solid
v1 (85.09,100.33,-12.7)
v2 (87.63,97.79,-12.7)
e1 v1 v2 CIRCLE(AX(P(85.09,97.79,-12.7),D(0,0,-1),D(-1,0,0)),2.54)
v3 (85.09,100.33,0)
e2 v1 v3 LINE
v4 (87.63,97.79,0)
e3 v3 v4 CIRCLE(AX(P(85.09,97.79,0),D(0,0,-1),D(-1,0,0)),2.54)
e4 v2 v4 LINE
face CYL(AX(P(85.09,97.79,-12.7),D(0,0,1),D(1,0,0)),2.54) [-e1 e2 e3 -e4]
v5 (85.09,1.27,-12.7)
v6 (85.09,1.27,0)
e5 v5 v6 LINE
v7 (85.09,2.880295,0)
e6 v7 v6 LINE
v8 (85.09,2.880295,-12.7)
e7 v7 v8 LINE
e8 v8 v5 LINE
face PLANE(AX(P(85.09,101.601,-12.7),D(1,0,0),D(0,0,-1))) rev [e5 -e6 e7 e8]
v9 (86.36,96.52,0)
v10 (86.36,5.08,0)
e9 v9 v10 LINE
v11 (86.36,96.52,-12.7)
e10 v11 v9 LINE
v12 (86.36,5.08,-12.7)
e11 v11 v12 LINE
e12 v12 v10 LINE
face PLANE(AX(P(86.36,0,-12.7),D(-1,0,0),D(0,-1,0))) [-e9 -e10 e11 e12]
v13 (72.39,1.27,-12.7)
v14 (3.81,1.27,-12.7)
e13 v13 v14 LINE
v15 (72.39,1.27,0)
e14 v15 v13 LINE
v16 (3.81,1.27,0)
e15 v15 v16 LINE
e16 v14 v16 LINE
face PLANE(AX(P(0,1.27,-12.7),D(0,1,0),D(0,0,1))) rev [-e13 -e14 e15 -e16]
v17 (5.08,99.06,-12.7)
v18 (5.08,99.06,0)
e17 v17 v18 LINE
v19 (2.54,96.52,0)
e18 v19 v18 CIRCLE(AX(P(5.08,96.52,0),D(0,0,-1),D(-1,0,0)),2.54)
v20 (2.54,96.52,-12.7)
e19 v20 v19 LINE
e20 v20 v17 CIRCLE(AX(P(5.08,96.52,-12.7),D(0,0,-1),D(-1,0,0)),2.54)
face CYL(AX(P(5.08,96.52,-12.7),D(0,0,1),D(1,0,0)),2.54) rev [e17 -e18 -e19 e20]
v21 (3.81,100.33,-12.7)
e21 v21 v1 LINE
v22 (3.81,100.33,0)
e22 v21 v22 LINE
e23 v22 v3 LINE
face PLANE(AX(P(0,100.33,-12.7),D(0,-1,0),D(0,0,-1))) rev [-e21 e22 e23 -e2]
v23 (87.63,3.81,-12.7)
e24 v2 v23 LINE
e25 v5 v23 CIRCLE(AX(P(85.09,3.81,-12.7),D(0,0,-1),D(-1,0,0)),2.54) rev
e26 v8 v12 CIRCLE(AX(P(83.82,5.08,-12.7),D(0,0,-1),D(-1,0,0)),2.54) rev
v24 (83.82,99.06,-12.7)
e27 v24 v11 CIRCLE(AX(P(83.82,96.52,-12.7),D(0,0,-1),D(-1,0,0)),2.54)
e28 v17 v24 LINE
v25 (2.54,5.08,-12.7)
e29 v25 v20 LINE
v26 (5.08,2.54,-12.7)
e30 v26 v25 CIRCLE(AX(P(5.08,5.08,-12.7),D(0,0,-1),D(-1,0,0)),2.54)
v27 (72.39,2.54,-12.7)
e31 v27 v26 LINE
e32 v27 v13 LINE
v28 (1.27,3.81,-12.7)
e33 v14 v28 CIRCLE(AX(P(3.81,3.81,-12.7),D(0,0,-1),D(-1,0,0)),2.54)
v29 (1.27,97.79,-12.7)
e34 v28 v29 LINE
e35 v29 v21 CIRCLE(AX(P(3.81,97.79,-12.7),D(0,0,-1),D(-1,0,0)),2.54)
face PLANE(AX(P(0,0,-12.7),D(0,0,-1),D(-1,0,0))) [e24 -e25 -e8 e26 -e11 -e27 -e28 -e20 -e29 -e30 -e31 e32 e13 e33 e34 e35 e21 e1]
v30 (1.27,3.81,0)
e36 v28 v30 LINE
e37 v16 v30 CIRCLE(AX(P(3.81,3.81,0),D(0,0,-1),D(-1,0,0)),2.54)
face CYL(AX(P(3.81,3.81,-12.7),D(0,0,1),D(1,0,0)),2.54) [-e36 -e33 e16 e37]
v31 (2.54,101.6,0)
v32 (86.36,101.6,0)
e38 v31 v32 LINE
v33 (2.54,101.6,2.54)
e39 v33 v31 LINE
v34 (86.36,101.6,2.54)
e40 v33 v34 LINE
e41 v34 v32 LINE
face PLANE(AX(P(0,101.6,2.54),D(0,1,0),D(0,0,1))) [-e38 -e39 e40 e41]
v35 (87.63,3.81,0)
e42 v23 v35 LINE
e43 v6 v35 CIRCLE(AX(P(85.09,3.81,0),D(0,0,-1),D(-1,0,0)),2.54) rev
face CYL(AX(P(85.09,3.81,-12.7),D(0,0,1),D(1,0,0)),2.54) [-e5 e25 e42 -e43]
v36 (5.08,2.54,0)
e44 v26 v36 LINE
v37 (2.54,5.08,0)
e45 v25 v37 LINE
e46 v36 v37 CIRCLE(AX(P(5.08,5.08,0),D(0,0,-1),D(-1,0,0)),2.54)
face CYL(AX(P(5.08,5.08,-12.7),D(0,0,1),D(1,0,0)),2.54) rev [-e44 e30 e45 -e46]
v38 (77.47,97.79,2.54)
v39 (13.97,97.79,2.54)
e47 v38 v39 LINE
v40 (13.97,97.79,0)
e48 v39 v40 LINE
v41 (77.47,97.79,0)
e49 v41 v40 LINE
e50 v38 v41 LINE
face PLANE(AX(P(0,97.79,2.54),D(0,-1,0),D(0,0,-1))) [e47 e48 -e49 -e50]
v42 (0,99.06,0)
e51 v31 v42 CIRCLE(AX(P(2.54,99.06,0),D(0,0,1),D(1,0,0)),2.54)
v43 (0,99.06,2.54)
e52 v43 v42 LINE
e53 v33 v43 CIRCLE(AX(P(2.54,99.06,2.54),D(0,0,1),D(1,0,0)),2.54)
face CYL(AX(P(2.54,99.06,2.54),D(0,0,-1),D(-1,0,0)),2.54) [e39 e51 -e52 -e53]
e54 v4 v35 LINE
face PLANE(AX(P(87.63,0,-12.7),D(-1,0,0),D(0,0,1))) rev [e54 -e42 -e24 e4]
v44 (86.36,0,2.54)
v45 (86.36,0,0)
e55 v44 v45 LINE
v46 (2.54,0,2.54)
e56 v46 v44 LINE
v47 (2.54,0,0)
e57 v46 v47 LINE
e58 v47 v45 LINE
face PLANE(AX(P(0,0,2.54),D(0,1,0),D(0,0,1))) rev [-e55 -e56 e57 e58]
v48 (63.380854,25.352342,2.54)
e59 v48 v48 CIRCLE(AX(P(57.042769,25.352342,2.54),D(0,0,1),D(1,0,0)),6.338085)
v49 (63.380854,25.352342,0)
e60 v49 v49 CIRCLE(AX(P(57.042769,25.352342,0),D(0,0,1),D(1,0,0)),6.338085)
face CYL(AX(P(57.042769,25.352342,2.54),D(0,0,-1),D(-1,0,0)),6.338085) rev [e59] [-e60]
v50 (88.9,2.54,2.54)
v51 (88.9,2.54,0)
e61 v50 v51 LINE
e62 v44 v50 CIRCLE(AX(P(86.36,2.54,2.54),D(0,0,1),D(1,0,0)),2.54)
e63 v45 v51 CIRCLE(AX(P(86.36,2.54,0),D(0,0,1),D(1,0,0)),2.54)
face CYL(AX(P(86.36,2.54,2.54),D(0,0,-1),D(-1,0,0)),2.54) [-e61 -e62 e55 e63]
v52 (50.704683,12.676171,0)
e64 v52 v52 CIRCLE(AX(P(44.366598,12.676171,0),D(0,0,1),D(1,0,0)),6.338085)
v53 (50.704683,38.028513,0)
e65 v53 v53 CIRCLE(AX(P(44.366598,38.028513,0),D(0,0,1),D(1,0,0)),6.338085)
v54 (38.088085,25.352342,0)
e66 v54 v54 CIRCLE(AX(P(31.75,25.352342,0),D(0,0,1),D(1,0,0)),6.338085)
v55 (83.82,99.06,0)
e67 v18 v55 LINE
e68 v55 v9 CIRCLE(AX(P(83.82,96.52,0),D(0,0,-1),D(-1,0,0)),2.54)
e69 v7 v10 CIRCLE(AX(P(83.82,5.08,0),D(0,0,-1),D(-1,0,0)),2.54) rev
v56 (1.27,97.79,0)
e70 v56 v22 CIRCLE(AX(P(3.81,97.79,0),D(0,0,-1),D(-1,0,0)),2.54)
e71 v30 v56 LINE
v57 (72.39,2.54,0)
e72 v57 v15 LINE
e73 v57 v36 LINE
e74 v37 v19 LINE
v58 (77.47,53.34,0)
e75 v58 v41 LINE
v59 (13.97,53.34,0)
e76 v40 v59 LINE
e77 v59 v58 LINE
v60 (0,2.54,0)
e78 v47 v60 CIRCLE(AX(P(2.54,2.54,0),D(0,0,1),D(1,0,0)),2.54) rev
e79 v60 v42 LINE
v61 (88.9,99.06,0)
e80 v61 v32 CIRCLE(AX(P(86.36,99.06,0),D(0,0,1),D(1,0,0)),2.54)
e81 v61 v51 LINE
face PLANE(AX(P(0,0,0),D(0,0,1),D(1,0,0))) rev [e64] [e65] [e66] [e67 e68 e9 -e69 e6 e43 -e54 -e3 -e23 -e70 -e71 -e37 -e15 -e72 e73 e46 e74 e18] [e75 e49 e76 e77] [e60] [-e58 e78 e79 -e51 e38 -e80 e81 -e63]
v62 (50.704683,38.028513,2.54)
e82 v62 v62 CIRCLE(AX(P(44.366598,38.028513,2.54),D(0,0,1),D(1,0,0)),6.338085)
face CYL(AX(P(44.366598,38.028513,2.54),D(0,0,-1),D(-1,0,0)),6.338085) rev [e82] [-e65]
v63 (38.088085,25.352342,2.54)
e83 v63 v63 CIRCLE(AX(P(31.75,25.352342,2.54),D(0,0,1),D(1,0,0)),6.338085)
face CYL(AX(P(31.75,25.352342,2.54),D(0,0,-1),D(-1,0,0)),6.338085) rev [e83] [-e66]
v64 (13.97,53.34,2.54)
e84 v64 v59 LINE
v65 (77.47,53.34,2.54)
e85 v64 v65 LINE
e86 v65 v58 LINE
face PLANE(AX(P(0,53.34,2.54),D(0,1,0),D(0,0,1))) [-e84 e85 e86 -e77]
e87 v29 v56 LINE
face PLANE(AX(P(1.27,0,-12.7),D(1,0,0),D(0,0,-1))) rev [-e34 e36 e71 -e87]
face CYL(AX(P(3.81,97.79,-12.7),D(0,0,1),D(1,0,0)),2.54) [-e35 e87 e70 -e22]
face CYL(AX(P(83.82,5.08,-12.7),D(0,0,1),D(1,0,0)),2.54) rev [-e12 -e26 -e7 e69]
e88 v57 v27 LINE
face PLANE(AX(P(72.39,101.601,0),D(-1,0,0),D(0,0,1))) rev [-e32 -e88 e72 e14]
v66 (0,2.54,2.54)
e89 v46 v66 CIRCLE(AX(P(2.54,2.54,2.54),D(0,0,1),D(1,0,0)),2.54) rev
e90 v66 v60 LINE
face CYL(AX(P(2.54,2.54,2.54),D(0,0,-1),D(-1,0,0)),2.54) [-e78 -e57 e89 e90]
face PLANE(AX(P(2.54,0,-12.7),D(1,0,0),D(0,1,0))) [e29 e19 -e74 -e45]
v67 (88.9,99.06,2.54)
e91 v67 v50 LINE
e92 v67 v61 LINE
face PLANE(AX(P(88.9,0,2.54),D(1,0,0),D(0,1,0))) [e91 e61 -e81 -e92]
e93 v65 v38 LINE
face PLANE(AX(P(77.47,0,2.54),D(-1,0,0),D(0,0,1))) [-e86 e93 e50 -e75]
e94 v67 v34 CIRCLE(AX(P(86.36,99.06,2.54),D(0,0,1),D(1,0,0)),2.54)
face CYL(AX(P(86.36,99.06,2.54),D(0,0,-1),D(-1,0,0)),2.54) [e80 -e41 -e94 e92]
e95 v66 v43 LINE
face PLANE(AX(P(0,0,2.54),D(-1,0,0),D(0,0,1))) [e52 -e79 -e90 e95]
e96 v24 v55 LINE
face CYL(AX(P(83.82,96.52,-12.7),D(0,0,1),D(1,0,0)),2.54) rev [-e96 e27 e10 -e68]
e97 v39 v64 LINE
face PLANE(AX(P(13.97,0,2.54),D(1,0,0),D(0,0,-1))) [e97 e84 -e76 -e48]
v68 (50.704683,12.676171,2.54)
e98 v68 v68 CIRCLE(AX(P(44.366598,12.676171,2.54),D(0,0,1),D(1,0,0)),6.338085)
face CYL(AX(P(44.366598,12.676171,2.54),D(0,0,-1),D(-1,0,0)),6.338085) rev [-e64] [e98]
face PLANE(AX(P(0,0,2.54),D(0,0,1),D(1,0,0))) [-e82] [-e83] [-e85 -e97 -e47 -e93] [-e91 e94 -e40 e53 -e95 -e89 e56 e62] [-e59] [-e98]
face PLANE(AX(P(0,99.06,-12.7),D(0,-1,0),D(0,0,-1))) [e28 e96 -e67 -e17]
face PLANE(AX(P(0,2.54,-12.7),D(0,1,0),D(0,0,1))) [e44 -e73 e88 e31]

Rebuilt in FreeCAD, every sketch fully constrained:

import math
import FreeCAD as App
import Part
import Sketcher
Q = App.Units.Quantity


def add_polygon(sketch, points):
    """Adds a closed chain of lines whose ends are joined by coincident constraints."""
    first, n = sketch.GeometryCount, len(points)
    for a, b in zip(points, points[1:] + points[:1]):
        sketch.addGeometry(Part.LineSegment(App.Vector(*a, 0), App.Vector(*b, 0)), False)
    for i in range(n):
        sketch.addConstraint(Sketcher.Constraint("Coincident", first + i, 2, first + (i + 1) % n, 1))

doc = App.newDocument("Part")
body = doc.addObject("PartDesign::Body", "Body")

# Sketch on XY plane
sketch1 = body.newObject("Sketcher::SketchObject", "Sketch")
sketch1.AttachmentSupport = (doc.getObject("XY_Plane"), [""])
sketch1.MapMode = "FlatFace"
sketch1.addGeometry(Part.LineSegment(App.Vector(88.9, 2.5, 0), App.Vector(88.9, 99.1, 0)), False)  # 0
sketch1.addGeometry(Part.ArcOfCircle(Part.Circle(App.Vector(86.4, 99.1, 0), App.Vector(0, 0, 1), 2.5), math.radians(0), math.radians(90)), False)  # 1
sketch1.addGeometry(Part.LineSegment(App.Vector(86.4, 101.6, 0), App.Vector(2.5, 101.6, 0)), False)  # 2
sketch1.addGeometry(Part.ArcOfCircle(Part.Circle(App.Vector(2.5, 99.1, 0), App.Vector(0, 0, 1), 2.5), math.radians(90), math.radians(180)), False)  # 3
sketch1.addGeometry(Part.LineSegment(App.Vector(0, 99.1, 0), App.Vector(0, 2.5, 0)), False)  # 4
sketch1.addGeometry(Part.ArcOfCircle(Part.Circle(App.Vector(2.5, 2.5, 0), App.Vector(0, 0, 1), 2.5), math.radians(-180), math.radians(-90)), False)  # 5
sketch1.addGeometry(Part.LineSegment(App.Vector(2.5, 0, 0), App.Vector(86.4, 0, 0)), False)  # 6
sketch1.addGeometry(Part.ArcOfCircle(Part.Circle(App.Vector(86.4, 2.5, 0), App.Vector(0, 0, 1), 2.5), math.radians(-90), math.radians(0)), False)  # 7
sketch1.addGeometry(Part.Circle(App.Vector(57, 25.4, 0), App.Vector(0, 0, 1), 6.3), False)  # 8
sketch1.addGeometry(Part.Circle(App.Vector(44.4, 12.7, 0), App.Vector(0, 0, 1), 6.3), False)  # 9
sketch1.addGeometry(Part.Circle(App.Vector(31.8, 25.4, 0), App.Vector(0, 0, 1), 6.3), False)  # 10
sketch1.addGeometry(Part.Circle(App.Vector(44.4, 38, 0), App.Vector(0, 0, 1), 6.3), False)  # 11
add_polygon(sketch1, [(14, 53.3), (14, 97.8), (77.5, 97.8), (77.5, 53.3)])  # lines 12-15
sketch1.addConstraint([
    Sketcher.Constraint("Tangent", 0, 2, 1, 1),
    Sketcher.Constraint("Tangent", 1, 2, 2, 1),
    Sketcher.Constraint("Tangent", 2, 2, 3, 1),
    Sketcher.Constraint("Tangent", 3, 2, 4, 1),
    Sketcher.Constraint("Tangent", 4, 2, 5, 1),
    Sketcher.Constraint("Tangent", 5, 2, 6, 1),
    Sketcher.Constraint("Tangent", 6, 2, 7, 1),
    Sketcher.Constraint("Tangent", 7, 2, 0, 1),
    Sketcher.Constraint("Vertical", 0),
    Sketcher.Constraint("Horizontal", 2),
    Sketcher.Constraint("Vertical", 4),
    Sketcher.Constraint("Horizontal", 6),
    Sketcher.Constraint("Vertical", 12),
    Sketcher.Constraint("Horizontal", 13),
    Sketcher.Constraint("Vertical", 14),
    Sketcher.Constraint("Horizontal", 15),
    Sketcher.Constraint("Equal", 1, 3),
    Sketcher.Constraint("Equal", 3, 5),
    Sketcher.Constraint("Equal", 5, 7),
    Sketcher.Constraint("Equal", 8, 9),
    Sketcher.Constraint("Equal", 9, 10),
    Sketcher.Constraint("Equal", 10, 11),
    Sketcher.Constraint("PointOnObject", 3, 2, -2),
    Sketcher.Constraint("PointOnObject", 5, 2, -1),
    Sketcher.Constraint("Horizontal", 8, 3, 10, 3),
    Sketcher.Constraint("Vertical", 9, 3, 11, 3),
    Sketcher.Constraint("Radius", 1, Q("0.1 in")),
    Sketcher.Constraint("DistanceX", 2, 2, 2, 1, Q("3.3 in")),
    Sketcher.Constraint("DistanceX", 13, 1, 13, 2, Q("2.5 in")),
    Sketcher.Constraint("DistanceY", 0, 1, 0, 2, Q("3.8 in")),
    Sketcher.Constraint("DistanceY", 12, 1, 12, 2, Q("1.75 in")),
    Sketcher.Constraint("DistanceY", -1, 1, 14, 2, Q("2.1 in")),
    Sketcher.Constraint("DistanceX", 15, 2, 10, 3, Q("0.7 in")),
    Sketcher.Constraint("DistanceX", -1, 1, 10, 3, Q("1.25 in")),
    Sketcher.Constraint("Diameter", 8, 12.676171),
    Sketcher.Constraint("DistanceX", -1, 1, 9, 3, 44.366598),
    Sketcher.Constraint("DistanceX", -1, 1, 8, 3, 57.042769),
    Sketcher.Constraint("DistanceY", -1, 1, 8, 3, 25.352342),
    Sketcher.Constraint("DistanceY", -1, 1, 9, 3, 12.676171),
    Sketcher.Constraint("DistanceY", 10, 3, 11, 3, 12.676171),
])
pad1 = body.newObject("PartDesign::Pad", "Pad")
pad1.Profile = sketch1
pad1.Length = Q("0.1 in")

# Sketch on XY plane
sketch2 = body.newObject("Sketcher::SketchObject", "Sketch001")
sketch2.AttachmentSupport = (doc.getObject("XY_Plane"), [""])
sketch2.MapMode = "FlatFace"
sketch2.addGeometry([
    Part.LineSegment(App.Vector(3.8, 100.3, 0), App.Vector(85.1, 100.3, 0)),  # 0
    Part.ArcOfCircle(Part.Circle(App.Vector(85.1, 97.8, 0), App.Vector(0, 0, 1), 2.5), math.radians(0), math.radians(90)),  # 1
    Part.LineSegment(App.Vector(87.6, 97.8, 0), App.Vector(87.6, 3.8, 0)),  # 2
    Part.ArcOfCircle(Part.Circle(App.Vector(85.1, 3.8, 0), App.Vector(0, 0, 1), 2.5), math.radians(-90), math.radians(0)),  # 3
    Part.LineSegment(App.Vector(85.1, 1.3, 0), App.Vector(3.8, 1.3, 0)),  # 4
    Part.ArcOfCircle(Part.Circle(App.Vector(3.8, 3.8, 0), App.Vector(0, 0, 1), 2.5), math.radians(-180), math.radians(-90)),  # 5
    Part.LineSegment(App.Vector(1.3, 3.8, 0), App.Vector(1.3, 97.8, 0)),  # 6
    Part.ArcOfCircle(Part.Circle(App.Vector(3.8, 97.8, 0), App.Vector(0, 0, 1), 2.5), math.radians(90), math.radians(180)),  # 7
    Part.ArcOfCircle(Part.Circle(App.Vector(83.8, 96.5, 0), App.Vector(0, 0, 1), 2.5), math.radians(0), math.radians(90)),  # 8
    Part.LineSegment(App.Vector(83.8, 99.1, 0), App.Vector(5.1, 99.1, 0)),  # 9
    Part.ArcOfCircle(Part.Circle(App.Vector(5.1, 96.5, 0), App.Vector(0, 0, 1), 2.5), math.radians(90), math.radians(180)),  # 10
    Part.LineSegment(App.Vector(2.5, 96.5, 0), App.Vector(2.5, 5.1, 0)),  # 11
    Part.ArcOfCircle(Part.Circle(App.Vector(5.1, 5.1, 0), App.Vector(0, 0, 1), 2.5), math.radians(-180), math.radians(-90)),  # 12
    Part.LineSegment(App.Vector(5.1, 2.5, 0), App.Vector(83.8, 2.5, 0)),  # 13
    Part.ArcOfCircle(Part.Circle(App.Vector(83.8, 5.1, 0), App.Vector(0, 0, 1), 2.5), math.radians(-90), math.radians(0)),  # 14
    Part.LineSegment(App.Vector(86.4, 5.1, 0), App.Vector(86.4, 96.5, 0)),  # 15
], False)
sketch2.addConstraint([
    Sketcher.Constraint("Tangent", 0, 2, 1, 2),
    Sketcher.Constraint("Tangent", 1, 1, 2, 1),
    Sketcher.Constraint("Tangent", 2, 2, 3, 2),
    Sketcher.Constraint("Tangent", 3, 1, 4, 1),
    Sketcher.Constraint("Tangent", 4, 2, 5, 2),
    Sketcher.Constraint("Tangent", 5, 1, 6, 1),
    Sketcher.Constraint("Tangent", 6, 2, 7, 2),
    Sketcher.Constraint("Tangent", 7, 1, 0, 1),
    Sketcher.Constraint("Tangent", 8, 2, 9, 1),
    Sketcher.Constraint("Tangent", 9, 2, 10, 1),
    Sketcher.Constraint("Tangent", 10, 2, 11, 1),
    Sketcher.Constraint("Tangent", 11, 2, 12, 1),
    Sketcher.Constraint("Tangent", 12, 2, 13, 1),
    Sketcher.Constraint("Tangent", 13, 2, 14, 1),
    Sketcher.Constraint("Tangent", 14, 2, 15, 1),
    Sketcher.Constraint("Tangent", 15, 2, 8, 1),
    Sketcher.Constraint("Horizontal", 0),
    Sketcher.Constraint("Vertical", 2),
    Sketcher.Constraint("Horizontal", 4),
    Sketcher.Constraint("Vertical", 6),
    Sketcher.Constraint("Horizontal", 9),
    Sketcher.Constraint("Vertical", 11),
    Sketcher.Constraint("Horizontal", 13),
    Sketcher.Constraint("Vertical", 15),
    Sketcher.Constraint("Equal", 1, 3),
    Sketcher.Constraint("Equal", 3, 5),
    Sketcher.Constraint("Equal", 5, 7),
    Sketcher.Constraint("Equal", 7, 8),
    Sketcher.Constraint("Equal", 8, 10),
    Sketcher.Constraint("Equal", 10, 12),
    Sketcher.Constraint("Equal", 12, 14),
    Sketcher.Constraint("Radius", 1, Q("0.1 in")),
    Sketcher.Constraint("DistanceX", 0, 1, 0, 2, Q("3.2 in")),
    Sketcher.Constraint("DistanceX", 9, 2, 9, 1, Q("3.1 in")),
    Sketcher.Constraint("DistanceY", 2, 2, 2, 1, Q("3.7 in")),
    Sketcher.Constraint("DistanceY", 11, 2, 11, 1, Q("3.6 in")),
    Sketcher.Constraint("DistanceX", -1, 1, 8, 3, Q("3.3 in")),
    Sketcher.Constraint("DistanceY", -1, 1, 8, 3, Q("3.8 in")),
    Sketcher.Constraint("DistanceX", -1, 1, 1, 3, Q("3.35 in")),
    Sketcher.Constraint("DistanceY", -1, 1, 1, 3, Q("3.85 in")),
])
pad2 = body.newObject("PartDesign::Pad", "Pad001")
pad2.Profile = sketch2
pad2.Length = Q("0.5 in")
pad2.Reversed = True

# Sketch on XZ plane
sketch3 = body.newObject("Sketcher::SketchObject", "Sketch002")
sketch3.AttachmentSupport = (doc.getObject("XZ_Plane"), [""])
sketch3.MapMode = "FlatFace"
sketch3.AttachmentOffset = App.Placement(App.Vector(0, 0, -0.05 * 25.4), App.Rotation())
add_polygon(sketch3, [(72, 0), (72, -13), (85, -13), (85, 0)])  # lines 0-3
sketch3.addConstraint([
    Sketcher.Constraint("Vertical", 0),
    Sketcher.Constraint("Horizontal", 1),
    Sketcher.Constraint("Vertical", 2),
    Sketcher.Constraint("Horizontal", 3),
    Sketcher.Constraint("PointOnObject", 2, 2, -1),
    Sketcher.Constraint("Equal", 3, 0),
    Sketcher.Constraint("DistanceX", 1, 1, 1, 2, Q("0.5 in")),
    Sketcher.Constraint("DistanceX", -1, 1, 0, 2, Q("2.85 in")),
])
pocket1 = body.newObject("PartDesign::Pocket", "Pocket")
pocket1.Profile = sketch3
pocket1.Length = 1.610295

doc.recompute()
